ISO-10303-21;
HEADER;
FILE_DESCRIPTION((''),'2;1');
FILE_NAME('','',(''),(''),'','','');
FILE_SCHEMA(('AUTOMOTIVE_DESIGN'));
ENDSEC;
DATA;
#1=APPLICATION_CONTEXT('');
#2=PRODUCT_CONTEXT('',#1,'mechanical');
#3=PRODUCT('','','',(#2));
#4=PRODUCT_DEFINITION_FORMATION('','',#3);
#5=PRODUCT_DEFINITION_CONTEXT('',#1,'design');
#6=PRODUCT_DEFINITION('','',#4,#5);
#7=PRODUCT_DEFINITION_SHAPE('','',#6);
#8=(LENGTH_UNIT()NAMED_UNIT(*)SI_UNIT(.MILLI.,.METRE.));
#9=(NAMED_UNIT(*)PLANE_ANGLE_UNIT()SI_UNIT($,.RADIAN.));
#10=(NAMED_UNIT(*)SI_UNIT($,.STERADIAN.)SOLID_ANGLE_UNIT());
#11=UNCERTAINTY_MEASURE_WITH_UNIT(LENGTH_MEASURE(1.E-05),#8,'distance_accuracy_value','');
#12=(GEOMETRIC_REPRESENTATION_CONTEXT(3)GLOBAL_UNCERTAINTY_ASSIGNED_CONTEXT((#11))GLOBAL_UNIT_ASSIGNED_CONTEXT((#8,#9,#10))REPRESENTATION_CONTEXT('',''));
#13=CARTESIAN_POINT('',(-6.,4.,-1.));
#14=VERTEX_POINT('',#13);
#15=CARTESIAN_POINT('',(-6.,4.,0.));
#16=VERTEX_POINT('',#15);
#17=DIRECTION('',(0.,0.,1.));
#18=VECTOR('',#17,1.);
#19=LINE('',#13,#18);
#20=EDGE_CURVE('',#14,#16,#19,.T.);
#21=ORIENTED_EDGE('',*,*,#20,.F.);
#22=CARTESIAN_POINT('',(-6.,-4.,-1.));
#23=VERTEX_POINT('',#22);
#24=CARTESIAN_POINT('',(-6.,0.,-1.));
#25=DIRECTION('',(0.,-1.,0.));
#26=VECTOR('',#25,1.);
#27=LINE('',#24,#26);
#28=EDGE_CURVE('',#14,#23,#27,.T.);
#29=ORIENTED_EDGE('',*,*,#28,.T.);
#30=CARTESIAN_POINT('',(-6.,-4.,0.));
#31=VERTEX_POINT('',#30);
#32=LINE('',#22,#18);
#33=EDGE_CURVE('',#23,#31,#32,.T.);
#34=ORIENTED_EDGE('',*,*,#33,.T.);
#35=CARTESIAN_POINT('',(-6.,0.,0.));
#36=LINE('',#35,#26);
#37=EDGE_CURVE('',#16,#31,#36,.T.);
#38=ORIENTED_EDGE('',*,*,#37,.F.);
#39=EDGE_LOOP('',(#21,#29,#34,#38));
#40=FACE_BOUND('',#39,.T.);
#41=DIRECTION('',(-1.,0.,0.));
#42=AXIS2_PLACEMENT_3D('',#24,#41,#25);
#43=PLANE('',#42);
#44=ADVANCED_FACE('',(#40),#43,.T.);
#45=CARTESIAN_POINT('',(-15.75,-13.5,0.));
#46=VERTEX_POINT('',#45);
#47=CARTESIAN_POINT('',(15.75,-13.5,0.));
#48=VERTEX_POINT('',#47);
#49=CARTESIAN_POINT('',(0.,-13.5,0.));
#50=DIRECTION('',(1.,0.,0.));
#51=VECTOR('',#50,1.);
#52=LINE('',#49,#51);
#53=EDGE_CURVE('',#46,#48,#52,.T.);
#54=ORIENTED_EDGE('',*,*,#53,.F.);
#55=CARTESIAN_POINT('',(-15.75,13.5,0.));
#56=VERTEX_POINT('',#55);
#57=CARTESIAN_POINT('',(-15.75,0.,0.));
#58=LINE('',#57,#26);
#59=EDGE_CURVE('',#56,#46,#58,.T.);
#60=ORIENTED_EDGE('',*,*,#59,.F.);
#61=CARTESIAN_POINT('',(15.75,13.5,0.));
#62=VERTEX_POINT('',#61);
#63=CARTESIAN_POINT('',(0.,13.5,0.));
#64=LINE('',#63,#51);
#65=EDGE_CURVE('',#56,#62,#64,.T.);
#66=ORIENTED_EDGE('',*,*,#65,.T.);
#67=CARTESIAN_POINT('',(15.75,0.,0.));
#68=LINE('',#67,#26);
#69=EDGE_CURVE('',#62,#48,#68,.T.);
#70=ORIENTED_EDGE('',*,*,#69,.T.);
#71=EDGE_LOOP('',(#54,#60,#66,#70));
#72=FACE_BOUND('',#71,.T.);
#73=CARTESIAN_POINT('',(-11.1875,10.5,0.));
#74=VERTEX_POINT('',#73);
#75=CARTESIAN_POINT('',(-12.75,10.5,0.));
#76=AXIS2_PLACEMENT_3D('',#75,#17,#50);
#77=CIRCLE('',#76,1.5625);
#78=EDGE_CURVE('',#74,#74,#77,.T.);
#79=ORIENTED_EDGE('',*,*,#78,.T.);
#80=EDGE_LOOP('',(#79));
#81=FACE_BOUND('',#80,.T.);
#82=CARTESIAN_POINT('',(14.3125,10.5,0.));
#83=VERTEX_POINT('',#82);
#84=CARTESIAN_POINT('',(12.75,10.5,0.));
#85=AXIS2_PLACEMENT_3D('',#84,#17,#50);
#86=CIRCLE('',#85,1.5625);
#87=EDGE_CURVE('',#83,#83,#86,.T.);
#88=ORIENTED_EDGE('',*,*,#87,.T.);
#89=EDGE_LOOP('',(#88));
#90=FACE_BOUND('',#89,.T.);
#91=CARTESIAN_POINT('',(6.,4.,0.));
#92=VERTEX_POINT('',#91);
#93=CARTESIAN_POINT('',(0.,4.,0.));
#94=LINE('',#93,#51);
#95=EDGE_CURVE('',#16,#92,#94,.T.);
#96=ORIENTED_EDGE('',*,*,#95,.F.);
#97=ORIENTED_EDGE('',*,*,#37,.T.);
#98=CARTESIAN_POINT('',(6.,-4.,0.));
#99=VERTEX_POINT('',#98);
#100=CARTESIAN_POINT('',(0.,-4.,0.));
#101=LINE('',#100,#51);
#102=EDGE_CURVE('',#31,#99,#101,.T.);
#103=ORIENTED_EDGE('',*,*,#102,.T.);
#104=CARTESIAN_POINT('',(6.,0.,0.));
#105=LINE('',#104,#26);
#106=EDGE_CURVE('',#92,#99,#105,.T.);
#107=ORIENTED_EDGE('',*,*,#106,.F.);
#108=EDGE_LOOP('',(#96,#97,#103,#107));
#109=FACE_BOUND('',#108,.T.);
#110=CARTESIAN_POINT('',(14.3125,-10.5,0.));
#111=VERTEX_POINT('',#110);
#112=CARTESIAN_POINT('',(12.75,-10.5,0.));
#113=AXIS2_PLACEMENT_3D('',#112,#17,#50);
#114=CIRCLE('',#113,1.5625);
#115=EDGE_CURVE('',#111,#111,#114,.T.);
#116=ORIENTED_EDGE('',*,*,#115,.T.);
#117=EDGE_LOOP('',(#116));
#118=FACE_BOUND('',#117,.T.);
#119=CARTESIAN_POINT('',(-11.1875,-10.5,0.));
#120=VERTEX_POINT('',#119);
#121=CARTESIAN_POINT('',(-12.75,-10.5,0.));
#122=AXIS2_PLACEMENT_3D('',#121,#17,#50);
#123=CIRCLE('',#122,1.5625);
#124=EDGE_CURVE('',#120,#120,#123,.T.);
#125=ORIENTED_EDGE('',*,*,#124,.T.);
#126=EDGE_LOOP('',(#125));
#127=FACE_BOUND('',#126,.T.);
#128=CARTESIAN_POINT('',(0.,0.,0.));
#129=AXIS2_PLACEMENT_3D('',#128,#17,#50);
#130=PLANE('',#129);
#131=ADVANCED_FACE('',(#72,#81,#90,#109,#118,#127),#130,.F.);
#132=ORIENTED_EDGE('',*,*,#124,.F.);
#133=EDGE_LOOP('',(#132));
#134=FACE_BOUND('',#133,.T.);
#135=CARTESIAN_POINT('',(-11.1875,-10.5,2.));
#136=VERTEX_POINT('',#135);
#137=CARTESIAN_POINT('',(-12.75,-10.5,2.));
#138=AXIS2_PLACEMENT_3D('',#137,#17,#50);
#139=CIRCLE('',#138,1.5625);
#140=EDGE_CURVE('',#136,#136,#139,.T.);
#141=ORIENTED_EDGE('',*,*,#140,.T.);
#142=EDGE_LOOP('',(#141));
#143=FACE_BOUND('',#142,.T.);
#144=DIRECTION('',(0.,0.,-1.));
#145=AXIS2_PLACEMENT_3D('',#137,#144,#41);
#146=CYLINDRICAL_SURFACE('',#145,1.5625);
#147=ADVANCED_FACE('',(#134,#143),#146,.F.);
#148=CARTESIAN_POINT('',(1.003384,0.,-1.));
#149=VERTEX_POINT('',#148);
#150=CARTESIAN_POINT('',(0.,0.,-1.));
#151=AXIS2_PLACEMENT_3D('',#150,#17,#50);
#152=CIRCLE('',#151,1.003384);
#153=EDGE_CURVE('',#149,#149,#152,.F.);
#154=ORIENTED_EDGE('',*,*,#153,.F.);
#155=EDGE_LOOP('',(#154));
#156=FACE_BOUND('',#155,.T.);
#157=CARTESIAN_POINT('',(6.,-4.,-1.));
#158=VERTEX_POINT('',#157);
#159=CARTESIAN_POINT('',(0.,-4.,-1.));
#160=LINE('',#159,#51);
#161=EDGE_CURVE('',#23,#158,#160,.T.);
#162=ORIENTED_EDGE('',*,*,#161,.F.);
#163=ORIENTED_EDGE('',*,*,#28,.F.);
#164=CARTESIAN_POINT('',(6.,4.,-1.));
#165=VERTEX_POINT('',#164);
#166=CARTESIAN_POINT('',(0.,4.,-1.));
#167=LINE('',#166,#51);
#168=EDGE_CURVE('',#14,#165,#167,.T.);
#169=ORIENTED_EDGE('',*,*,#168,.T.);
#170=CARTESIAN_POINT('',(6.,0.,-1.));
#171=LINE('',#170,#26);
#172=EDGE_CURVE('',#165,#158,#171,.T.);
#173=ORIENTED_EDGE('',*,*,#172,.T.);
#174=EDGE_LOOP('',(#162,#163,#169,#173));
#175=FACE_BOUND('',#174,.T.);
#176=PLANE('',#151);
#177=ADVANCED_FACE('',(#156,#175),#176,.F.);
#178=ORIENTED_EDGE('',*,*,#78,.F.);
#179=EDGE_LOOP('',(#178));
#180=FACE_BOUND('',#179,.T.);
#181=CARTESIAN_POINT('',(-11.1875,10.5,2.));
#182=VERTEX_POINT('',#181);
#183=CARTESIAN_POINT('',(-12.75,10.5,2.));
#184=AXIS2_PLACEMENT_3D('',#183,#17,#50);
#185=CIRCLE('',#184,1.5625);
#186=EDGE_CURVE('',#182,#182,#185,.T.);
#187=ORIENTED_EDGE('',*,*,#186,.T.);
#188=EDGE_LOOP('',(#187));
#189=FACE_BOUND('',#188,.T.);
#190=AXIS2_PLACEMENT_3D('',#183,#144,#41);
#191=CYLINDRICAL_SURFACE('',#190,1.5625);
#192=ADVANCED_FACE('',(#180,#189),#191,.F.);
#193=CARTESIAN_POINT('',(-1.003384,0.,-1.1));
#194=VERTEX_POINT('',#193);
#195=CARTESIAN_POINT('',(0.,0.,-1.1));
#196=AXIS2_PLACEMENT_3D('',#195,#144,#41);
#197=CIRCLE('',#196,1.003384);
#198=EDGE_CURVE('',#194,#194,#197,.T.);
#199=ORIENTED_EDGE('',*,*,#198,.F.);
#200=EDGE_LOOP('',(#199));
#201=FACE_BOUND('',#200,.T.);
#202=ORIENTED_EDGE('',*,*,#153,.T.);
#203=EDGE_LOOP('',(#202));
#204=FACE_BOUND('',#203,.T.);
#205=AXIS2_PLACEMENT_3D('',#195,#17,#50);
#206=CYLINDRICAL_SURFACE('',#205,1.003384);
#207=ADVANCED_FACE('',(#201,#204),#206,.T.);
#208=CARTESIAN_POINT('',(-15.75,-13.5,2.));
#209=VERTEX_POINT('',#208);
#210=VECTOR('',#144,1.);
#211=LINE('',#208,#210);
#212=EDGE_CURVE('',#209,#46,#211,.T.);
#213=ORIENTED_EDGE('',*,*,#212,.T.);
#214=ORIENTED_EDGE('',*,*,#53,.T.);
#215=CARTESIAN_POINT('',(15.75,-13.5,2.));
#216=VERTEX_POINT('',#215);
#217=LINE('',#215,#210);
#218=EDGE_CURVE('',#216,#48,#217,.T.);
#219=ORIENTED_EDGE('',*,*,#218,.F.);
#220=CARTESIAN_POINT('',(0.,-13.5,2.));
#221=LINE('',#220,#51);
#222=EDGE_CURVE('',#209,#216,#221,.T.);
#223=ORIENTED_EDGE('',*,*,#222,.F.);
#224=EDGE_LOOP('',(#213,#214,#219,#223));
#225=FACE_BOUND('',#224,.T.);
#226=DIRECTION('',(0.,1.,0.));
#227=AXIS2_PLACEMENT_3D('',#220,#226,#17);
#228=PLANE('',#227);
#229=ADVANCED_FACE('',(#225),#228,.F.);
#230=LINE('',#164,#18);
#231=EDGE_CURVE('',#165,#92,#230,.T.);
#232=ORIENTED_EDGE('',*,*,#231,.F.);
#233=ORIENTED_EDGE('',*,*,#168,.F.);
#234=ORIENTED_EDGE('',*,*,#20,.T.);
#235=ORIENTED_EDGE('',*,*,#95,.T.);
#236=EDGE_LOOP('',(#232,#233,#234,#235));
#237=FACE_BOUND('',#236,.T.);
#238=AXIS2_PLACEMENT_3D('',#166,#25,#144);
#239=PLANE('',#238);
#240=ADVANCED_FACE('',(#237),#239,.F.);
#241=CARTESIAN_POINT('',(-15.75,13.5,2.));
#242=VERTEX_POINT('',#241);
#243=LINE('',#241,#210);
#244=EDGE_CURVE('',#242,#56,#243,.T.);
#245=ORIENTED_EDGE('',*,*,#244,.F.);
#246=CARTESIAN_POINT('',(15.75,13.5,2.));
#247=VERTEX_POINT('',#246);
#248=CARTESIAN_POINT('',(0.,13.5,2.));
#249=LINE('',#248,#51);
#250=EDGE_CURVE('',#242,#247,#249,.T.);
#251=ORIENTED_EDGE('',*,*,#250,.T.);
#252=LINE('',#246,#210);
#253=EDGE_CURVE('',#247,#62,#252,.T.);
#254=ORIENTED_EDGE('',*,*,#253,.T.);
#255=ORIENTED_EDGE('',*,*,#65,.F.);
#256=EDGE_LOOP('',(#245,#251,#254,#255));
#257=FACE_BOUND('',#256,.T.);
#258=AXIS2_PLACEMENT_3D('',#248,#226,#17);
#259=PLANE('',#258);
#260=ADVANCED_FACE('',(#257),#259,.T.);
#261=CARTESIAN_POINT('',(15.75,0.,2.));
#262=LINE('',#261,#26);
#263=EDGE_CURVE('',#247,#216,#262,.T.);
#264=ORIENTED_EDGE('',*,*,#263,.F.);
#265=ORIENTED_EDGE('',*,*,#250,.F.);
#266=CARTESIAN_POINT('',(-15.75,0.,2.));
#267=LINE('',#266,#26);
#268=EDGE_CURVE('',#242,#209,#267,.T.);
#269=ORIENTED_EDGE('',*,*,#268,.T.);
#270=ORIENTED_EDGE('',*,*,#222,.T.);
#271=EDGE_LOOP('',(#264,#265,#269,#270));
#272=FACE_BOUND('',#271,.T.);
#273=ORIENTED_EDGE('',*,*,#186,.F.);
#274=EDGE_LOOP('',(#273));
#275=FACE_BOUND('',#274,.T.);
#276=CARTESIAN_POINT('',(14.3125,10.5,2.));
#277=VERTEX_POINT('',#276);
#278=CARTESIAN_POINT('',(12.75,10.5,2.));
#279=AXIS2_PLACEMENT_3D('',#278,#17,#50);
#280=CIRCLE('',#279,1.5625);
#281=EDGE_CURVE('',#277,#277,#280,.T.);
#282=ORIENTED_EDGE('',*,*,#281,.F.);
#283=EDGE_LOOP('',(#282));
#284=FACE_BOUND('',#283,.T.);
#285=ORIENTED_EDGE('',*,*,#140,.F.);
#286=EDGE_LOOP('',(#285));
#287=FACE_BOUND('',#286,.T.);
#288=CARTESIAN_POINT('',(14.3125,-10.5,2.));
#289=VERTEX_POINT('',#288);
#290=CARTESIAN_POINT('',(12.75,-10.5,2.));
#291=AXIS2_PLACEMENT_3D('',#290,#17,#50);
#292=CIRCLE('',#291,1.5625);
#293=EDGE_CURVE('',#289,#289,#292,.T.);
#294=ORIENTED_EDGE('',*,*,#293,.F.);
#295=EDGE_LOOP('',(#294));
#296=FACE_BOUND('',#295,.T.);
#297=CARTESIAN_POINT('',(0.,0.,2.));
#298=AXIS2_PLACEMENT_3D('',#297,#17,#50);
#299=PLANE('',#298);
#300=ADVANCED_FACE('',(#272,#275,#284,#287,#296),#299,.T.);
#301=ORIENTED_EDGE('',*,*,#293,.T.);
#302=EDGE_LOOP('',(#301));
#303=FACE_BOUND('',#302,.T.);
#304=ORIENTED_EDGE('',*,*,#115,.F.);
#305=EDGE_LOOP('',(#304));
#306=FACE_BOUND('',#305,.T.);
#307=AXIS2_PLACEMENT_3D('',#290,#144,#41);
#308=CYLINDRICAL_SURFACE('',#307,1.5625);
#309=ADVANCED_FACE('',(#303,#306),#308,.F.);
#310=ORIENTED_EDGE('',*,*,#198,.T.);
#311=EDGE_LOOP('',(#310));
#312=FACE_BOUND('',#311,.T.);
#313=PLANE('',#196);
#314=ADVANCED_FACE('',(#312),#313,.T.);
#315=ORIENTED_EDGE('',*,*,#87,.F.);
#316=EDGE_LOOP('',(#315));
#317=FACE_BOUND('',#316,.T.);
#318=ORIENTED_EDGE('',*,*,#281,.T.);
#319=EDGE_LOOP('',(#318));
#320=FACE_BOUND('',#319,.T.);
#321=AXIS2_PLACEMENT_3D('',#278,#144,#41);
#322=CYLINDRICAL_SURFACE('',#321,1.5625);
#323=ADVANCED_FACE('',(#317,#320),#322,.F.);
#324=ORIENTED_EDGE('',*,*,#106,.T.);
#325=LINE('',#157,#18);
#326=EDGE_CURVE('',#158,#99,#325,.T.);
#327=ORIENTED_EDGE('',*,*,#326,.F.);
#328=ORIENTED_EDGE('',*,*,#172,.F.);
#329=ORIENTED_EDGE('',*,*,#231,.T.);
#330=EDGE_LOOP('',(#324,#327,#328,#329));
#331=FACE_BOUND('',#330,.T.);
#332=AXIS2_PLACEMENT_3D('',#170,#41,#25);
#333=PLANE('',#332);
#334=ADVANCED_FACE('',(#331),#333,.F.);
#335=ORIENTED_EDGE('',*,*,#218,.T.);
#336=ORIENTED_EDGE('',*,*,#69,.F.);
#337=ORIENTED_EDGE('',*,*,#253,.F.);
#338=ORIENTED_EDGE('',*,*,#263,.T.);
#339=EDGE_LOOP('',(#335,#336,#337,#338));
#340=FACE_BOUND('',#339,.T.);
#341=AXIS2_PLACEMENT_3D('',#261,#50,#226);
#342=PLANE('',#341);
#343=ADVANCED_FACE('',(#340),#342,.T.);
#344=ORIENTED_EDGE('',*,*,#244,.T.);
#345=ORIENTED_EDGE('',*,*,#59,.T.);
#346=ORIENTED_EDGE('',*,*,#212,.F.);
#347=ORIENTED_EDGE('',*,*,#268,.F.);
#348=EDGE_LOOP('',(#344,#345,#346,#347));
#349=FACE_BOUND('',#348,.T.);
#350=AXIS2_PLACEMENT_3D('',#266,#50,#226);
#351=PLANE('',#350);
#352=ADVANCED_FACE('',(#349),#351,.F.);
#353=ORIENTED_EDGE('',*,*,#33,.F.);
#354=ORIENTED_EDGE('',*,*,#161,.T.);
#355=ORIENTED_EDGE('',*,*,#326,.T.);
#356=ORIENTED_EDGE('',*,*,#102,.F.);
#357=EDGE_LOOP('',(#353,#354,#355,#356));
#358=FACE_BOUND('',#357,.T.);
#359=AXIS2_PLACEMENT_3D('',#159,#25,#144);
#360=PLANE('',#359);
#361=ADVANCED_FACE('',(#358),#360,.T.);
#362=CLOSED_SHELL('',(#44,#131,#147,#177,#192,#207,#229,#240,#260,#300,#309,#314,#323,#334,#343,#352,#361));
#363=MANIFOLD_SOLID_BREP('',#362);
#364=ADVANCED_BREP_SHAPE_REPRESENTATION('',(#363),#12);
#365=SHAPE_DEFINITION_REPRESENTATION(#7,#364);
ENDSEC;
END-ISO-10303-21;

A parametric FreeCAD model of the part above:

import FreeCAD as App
import Part
import Sketcher

V = App.Vector
Q = App.Units.Quantity


def add_polygon(sketch, points):
    """Adds a closed chain of lines whose ends are joined by coincident constraints."""
    first, n = sketch.GeometryCount, len(points)
    for a, b in zip(points, points[1:] + points[:1]):
        sketch.addGeometry(Part.LineSegment(App.Vector(*a, 0), App.Vector(*b, 0)), False)
    for i in range(n):
        sketch.addConstraint(Sketcher.Constraint("Coincident", first + i, 2, first + (i + 1) % n, 1))

doc = App.newDocument("Part")
body = doc.addObject("PartDesign::Body", "Body")

# Sketch on XY plane
sketch1 = body.newObject("Sketcher::SketchObject", "Sketch")
sketch1.AttachmentSupport = (doc.getObject("XY_Plane"), [""])
sketch1.MapMode = "FlatFace"
add_polygon(sketch1, [(-15.8, 13.5), (-15.8, -13.5), (15.8, -13.5), (15.8, 13.5)])  # lines 0-3
sketch1.addGeometry(Part.Circle(V(-12.8, -10.5, 0), V(0, 0, 1), 1.6), False)  # 4
sketch1.addGeometry(Part.Circle(V(12.8, -10.5, 0), V(0, 0, 1), 1.6), False)  # 5
sketch1.addGeometry(Part.Circle(V(-12.8, 10.5, 0), V(0, 0, 1), 1.6), False)  # 6
sketch1.addGeometry(Part.Circle(V(12.8, 10.5, 0), V(0, 0, 1), 1.6), False)  # 7
sketch1.addConstraint(Sketcher.Constraint("Vertical", 0))
sketch1.addConstraint(Sketcher.Constraint("Horizontal", 1))
sketch1.addConstraint(Sketcher.Constraint("Vertical", 2))
sketch1.addConstraint(Sketcher.Constraint("Horizontal", 3))
sketch1.addConstraint(Sketcher.Constraint("Equal", 4, 5))
sketch1.addConstraint(Sketcher.Constraint("Equal", 5, 6))
sketch1.addConstraint(Sketcher.Constraint("Equal", 6, 7))
sketch1.addConstraint(Sketcher.Constraint("Symmetric", 5, 3, 6, 3, -1, 1))
sketch1.addConstraint(Sketcher.Constraint("Symmetric", 4, 3, 7, 3, -1, 1))
sketch1.addConstraint(Sketcher.Constraint("Symmetric", 0, 2, 2, 2, -1, 1))
sketch1.addConstraint(Sketcher.Constraint("Symmetric", 4, 3, 5, 3, -2))
sketch1.addConstraint(Sketcher.Constraint("DistanceY", 0, 2, 0, 1, Q("27 mm")))
sketch1.addConstraint(Sketcher.Constraint("Diameter", 4, Q("3.125 mm")))
sketch1.addConstraint(Sketcher.Constraint("DistanceX", 1, 1, 1, 2, Q("31.5 mm")))
sketch1.addConstraint(Sketcher.Constraint("DistanceY", 4, 3, 6, 3, Q("21 mm")))
sketch1.addConstraint(Sketcher.Constraint("DistanceX", 0, 2, 4, 3, Q("3 mm")))
pad1 = body.newObject("PartDesign::Pad", "Pad")
pad1.Profile = sketch1
pad1.Length = 2

# Sketch on XY plane
sketch2 = body.newObject("Sketcher::SketchObject", "Sketch001")
sketch2.AttachmentSupport = (doc.getObject("XY_Plane"), [""])
sketch2.MapMode = "FlatFace"
add_polygon(sketch2, [(-6, 4), (-6, -4), (6, -4), (6, 4)])  # lines 0-3
sketch2.addConstraint(Sketcher.Constraint("Vertical", 0))
sketch2.addConstraint(Sketcher.Constraint("Horizontal", 1))
sketch2.addConstraint(Sketcher.Constraint("Vertical", 2))
sketch2.addConstraint(Sketcher.Constraint("Horizontal", 3))
sketch2.addConstraint(Sketcher.Constraint("Symmetric", 0, 2, 2, 2, -1, 1))
sketch2.addConstraint(Sketcher.Constraint("DistanceX", 1, 1, 1, 2, Q("12 mm")))
sketch2.addConstraint(Sketcher.Constraint("DistanceY", 0, 2, 0, 1, Q("8 mm")))
pad2 = body.newObject("PartDesign::Pad", "Pad001")
pad2.Profile = sketch2
pad2.Length = 1
pad2.Reversed = True

# Sketch on XY plane
sketch3 = body.newObject("Sketcher::SketchObject", "Sketch002")
sketch3.AttachmentSupport = (doc.getObject("XY_Plane"), [""])
sketch3.MapMode = "FlatFace"
sketch3.AttachmentOffset = App.Placement(V(0, 0, -1), App.Rotation())
sketch3.addGeometry(Part.Circle(V(0, 0, 0), V(0, 0, 1), 1), False)
sketch3.addConstraint(Sketcher.Constraint("Coincident", 0, 3, -1, 1))
sketch3.addConstraint(Sketcher.Constraint("Diameter", 0, Q("2.006768 mm")))
pad3 = body.newObject("PartDesign::Pad", "Pad002")
pad3.Profile = sketch3
pad3.Length = 0.1
pad3.Reversed = True

doc.recompute()
